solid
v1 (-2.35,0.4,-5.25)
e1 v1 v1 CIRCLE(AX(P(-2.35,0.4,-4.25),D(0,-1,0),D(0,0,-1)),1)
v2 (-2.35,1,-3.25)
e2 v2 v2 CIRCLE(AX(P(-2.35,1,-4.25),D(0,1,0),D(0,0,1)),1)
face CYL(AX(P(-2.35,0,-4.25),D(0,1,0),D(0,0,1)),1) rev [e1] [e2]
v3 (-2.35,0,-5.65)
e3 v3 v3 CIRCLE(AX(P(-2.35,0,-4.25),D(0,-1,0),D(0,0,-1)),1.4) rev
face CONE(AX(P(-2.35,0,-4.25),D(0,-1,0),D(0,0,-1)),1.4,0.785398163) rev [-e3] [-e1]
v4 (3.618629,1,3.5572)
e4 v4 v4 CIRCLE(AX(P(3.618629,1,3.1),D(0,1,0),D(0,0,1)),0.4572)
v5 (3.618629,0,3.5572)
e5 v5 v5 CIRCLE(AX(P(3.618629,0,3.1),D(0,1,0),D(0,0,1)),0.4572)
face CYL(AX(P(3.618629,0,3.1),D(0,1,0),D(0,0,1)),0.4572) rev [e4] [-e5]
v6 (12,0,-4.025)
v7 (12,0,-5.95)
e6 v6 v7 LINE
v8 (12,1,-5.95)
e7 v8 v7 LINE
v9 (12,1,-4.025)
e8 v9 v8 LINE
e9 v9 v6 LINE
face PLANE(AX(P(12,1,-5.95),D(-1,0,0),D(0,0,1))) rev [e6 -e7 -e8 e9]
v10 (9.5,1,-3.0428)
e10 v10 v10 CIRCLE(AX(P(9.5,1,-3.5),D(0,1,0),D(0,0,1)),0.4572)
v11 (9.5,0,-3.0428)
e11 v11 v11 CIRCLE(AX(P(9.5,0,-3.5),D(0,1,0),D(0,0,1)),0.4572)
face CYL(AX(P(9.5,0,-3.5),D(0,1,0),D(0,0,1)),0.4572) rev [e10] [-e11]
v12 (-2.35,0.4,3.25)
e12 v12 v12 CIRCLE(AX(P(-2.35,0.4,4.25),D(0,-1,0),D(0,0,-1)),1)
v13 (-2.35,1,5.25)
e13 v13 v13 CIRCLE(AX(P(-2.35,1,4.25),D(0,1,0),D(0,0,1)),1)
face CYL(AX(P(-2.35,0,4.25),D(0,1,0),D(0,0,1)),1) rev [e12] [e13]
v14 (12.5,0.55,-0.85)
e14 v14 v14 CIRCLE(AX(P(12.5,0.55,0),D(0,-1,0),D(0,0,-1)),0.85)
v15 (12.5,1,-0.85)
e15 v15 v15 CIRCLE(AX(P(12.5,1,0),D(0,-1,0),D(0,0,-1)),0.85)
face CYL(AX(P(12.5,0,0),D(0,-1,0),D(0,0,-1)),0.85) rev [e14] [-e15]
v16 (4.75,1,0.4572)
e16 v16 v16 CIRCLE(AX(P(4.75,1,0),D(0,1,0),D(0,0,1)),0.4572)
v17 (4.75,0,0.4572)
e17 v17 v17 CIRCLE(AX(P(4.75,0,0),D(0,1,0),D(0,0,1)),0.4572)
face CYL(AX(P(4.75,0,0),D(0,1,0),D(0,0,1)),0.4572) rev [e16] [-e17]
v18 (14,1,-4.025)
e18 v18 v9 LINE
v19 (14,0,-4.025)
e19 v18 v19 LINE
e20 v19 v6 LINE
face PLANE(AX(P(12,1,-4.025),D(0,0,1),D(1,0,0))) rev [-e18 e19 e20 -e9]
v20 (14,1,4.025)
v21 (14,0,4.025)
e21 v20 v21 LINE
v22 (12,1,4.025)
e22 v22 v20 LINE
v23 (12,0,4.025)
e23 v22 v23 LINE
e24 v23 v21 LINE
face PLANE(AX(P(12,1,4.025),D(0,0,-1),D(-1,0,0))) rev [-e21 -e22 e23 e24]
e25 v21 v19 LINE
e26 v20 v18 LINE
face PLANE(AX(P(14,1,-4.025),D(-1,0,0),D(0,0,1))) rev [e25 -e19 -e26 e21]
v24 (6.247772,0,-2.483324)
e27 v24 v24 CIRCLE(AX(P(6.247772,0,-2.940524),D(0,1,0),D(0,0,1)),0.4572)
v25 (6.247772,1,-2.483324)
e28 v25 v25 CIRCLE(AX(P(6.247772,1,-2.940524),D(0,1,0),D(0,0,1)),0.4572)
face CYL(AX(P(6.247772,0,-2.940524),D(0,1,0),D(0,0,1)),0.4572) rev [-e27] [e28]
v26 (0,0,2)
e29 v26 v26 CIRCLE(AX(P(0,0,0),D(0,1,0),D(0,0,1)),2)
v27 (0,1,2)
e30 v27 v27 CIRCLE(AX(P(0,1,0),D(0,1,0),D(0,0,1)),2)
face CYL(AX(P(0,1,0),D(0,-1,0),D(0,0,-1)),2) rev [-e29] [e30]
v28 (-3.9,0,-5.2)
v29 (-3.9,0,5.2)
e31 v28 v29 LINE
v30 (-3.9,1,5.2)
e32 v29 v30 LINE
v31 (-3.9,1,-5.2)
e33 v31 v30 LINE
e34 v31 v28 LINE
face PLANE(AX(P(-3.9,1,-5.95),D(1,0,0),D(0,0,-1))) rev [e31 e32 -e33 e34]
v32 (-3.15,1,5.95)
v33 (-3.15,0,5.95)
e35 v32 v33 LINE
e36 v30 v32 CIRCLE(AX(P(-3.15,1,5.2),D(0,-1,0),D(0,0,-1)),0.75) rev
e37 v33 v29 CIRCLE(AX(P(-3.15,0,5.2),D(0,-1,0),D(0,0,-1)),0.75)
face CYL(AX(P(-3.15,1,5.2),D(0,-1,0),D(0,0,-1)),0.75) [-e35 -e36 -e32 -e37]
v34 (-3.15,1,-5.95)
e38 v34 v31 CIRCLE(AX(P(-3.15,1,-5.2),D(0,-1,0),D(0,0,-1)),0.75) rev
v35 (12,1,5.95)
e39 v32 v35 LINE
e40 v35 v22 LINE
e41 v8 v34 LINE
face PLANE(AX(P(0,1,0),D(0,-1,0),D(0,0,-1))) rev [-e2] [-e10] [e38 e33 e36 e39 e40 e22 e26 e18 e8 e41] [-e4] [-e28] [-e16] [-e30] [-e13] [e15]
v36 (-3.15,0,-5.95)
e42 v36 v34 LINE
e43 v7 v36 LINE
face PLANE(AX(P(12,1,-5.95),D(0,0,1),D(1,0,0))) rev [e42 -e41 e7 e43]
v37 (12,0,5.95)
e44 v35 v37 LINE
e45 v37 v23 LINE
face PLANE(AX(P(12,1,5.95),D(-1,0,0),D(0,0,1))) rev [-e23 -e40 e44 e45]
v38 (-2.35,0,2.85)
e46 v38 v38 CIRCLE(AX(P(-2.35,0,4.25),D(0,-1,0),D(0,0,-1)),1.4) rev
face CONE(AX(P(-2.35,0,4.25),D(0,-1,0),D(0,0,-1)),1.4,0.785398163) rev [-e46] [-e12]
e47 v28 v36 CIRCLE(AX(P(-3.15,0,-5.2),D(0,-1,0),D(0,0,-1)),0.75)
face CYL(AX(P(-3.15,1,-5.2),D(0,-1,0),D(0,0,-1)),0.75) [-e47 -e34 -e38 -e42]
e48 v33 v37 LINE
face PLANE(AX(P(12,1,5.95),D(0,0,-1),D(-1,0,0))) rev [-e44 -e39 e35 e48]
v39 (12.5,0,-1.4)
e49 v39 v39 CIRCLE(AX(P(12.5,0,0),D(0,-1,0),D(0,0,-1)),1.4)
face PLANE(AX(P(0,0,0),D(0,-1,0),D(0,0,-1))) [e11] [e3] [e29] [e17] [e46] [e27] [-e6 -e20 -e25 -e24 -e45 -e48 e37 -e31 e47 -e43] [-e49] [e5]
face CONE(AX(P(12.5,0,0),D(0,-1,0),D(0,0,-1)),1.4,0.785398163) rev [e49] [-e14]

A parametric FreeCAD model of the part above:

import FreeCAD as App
import Part
import Sketcher
from FreeCAD import Vector
Q = App.Units.Quantity


def edges_at(feature, points):
    """Names of the edges that pass closest to the given points."""
    edges = feature.Shape.Edges
    near = lambda p: min(range(len(edges)), key=lambda i: edges[i].distToShape(Part.Vertex(*p))[0])
    return sorted({f"Edge{near(p) + 1}" for p in points})

doc = App.newDocument("Part")
body = doc.addObject("PartDesign::Body", "Body")

sketch1 = body.newObject("Sketcher::SketchObject", "Sketch")
sketch1.AttachmentSupport = (doc.getObject("XZ_Plane"), [""])
sketch1.MapMode = "FlatFace"
sketch1.addGeometry(Part.LineSegment(Vector(12, -6, 0), Vector(-3.9, -6, 0)), False)
sketch1.addGeometry(Part.LineSegment(Vector(-3.9, -6, 0), Vector(-3.9, 6, 0)), False)
sketch1.addGeometry(Part.LineSegment(Vector(-3.9, 6, 0), Vector(12, 6, 0)), False)
sketch1.addGeometry(Part.LineSegment(Vector(12, 6, 0), Vector(12, 4, 0)), False)
sketch1.addGeometry(Part.LineSegment(Vector(12, 4, 0), Vector(14, 4, 0)), False)
sketch1.addGeometry(Part.LineSegment(Vector(14, 4, 0), Vector(14, -4, 0)), False)
sketch1.addGeometry(Part.LineSegment(Vector(14, -4, 0), Vector(12, -4, 0)), False)
sketch1.addGeometry(Part.LineSegment(Vector(12, -4, 0), Vector(12, -6, 0)), False)
sketch1.addGeometry(Part.Circle(Vector(0, 0, 0), Vector(0, 0, 1), 2), False)
sketch1.addConstraint(Sketcher.Constraint("Coincident", 0, 2, 1, 1))
sketch1.addConstraint(Sketcher.Constraint("Coincident", 1, 2, 2, 1))
sketch1.addConstraint(Sketcher.Constraint("Coincident", 2, 2, 3, 1))
sketch1.addConstraint(Sketcher.Constraint("Coincident", 3, 2, 4, 1))
sketch1.addConstraint(Sketcher.Constraint("Coincident", 4, 2, 5, 1))
sketch1.addConstraint(Sketcher.Constraint("Coincident", 5, 2, 6, 1))
sketch1.addConstraint(Sketcher.Constraint("Coincident", 6, 2, 7, 1))
sketch1.addConstraint(Sketcher.Constraint("Coincident", 7, 2, 0, 1))
sketch1.addConstraint(Sketcher.Constraint("Horizontal", 0))
sketch1.addConstraint(Sketcher.Constraint("Vertical", 1))
sketch1.addConstraint(Sketcher.Constraint("Horizontal", 2))
sketch1.addConstraint(Sketcher.Constraint("Vertical", 3))
sketch1.addConstraint(Sketcher.Constraint("Horizontal", 4))
sketch1.addConstraint(Sketcher.Constraint("Vertical", 5))
sketch1.addConstraint(Sketcher.Constraint("Horizontal", 6))
sketch1.addConstraint(Sketcher.Constraint("Vertical", 7))
sketch1.addConstraint(Sketcher.Constraint("Coincident", 8, 3, -1, 1))
sketch1.addConstraint(Sketcher.Constraint("Symmetric", 3, 2, 6, 2, -1))
sketch1.addConstraint(Sketcher.Constraint("Equal", 3, 7))
sketch1.addConstraint(Sketcher.Constraint("Diameter", 8, Q("4 mm")))
sketch1.addConstraint(Sketcher.Constraint("DistanceX", 4, 1, 4, 2, Q("2 mm")))
sketch1.addConstraint(Sketcher.Constraint("DistanceX", 0, 2, 0, 1, Q("15.9 mm")))
sketch1.addConstraint(Sketcher.Constraint("DistanceY", 1, 1, 1, 2, Q("11.9 mm")))
sketch1.addConstraint(Sketcher.Constraint("DistanceX", -1, 1, 2, 2, Q("12 mm")))
sketch1.addConstraint(Sketcher.Constraint("DistanceY", 5, 2, 5, 1, Q("8.05 mm")))
pad1 = body.newObject("PartDesign::Pad", "Pad")
pad1.Profile = sketch1
pad1.Length = 1
pad1.Reversed = True

sketch2 = body.newObject("Sketcher::SketchObject", "Sketch001")
sketch2.AttachmentSupport = (doc.getObject("XZ_Plane"), [""])
sketch2.MapMode = "FlatFace"
sketch2.AttachmentOffset = App.Placement(Vector(0, 0, -1), App.Rotation())
sketch2.addGeometry(Part.Circle(Vector(-2.4, -4.2, 0), Vector(0, 0, 1), 1), False)
sketch2.addGeometry(Part.Circle(Vector(-2.4, 4.2, 0), Vector(0, 0, 1), 1), False)
sketch2.addConstraint(Sketcher.Constraint("Equal", 0, 1))
sketch2.addConstraint(Sketcher.Constraint("Symmetric", 0, 3, 1, 3, -1))
sketch2.addConstraint(Sketcher.Constraint("Diameter", 0, Q("2 mm")))
sketch2.addConstraint(Sketcher.Constraint("DistanceY", 0, 3, 1, 3, Q("8.5 mm")))
sketch2.addConstraint(Sketcher.Constraint("DistanceX", 0, 3, -1, 1, Q("2.35 mm")))
pocket1 = body.newObject("PartDesign::Pocket", "Pocket")
pocket1.Profile = sketch2
pocket1.Type = "ThroughAll"
pocket1.Reversed = True
doc.recompute()

fillet = body.newObject("PartDesign::Fillet", "Fillet")
fillet.Base = (pocket1, edges_at(pocket1, [(-3.9, 0.5, -5.95), (-3.9, 0.5, 5.95)]))
fillet.Radius = 0.75
doc.recompute()

chamfer = body.newObject("PartDesign::Chamfer", "Chamfer")
chamfer.Base = (fillet, edges_at(fillet, [(-2.35, 0, -5.25), (-2.35, 0, 3.25)]))
chamfer.Size = 0.4

sketch3 = body.newObject("Sketcher::SketchObject", "Sketch002")
sketch3.AttachmentSupport = (doc.getObject("XZ_Plane"), [""])
sketch3.MapMode = "FlatFace"
sketch3.AttachmentOffset = App.Placement(Vector(0, 0, -1), App.Rotation())
sketch3.addGeometry(Part.Circle(Vector(3.62, 3.1, 0), Vector(0, 0, 1), 0.46), False)
sketch3.addGeometry(Part.Circle(Vector(4.75, 0, 0), Vector(0, 0, 1), 0.46), False)
sketch3.addGeometry(Part.Circle(Vector(6.25, -2.94, 0), Vector(0, 0, 1), 0.46), False)
sketch3.addGeometry(Part.Circle(Vector(9.5, -3.5, 0), Vector(0, 0, 1), 0.46), False)
sketch3.addConstraint(Sketcher.Constraint("Equal", 0, 1))
sketch3.addConstraint(Sketcher.Constraint("Equal", 1, 2))
sketch3.addConstraint(Sketcher.Constraint("Equal", 2, 3))
sketch3.addConstraint(Sketcher.Constraint("PointOnObject", 1, 3, -1))
sketch3.addConstraint(Sketcher.Constraint("Diameter", 0, Q("0.9144 mm")))
sketch3.addConstraint(Sketcher.Constraint("DistanceY", -1, 1, 0, 3, Q("3.1 mm")))
sketch3.addConstraint(Sketcher.Constraint("DistanceX", -1, 1, 3, 3, Q("9.5 mm")))
sketch3.addConstraint(Sketcher.Constraint("DistanceY", 3, 3, -1, 1, Q("3.5 mm")))
sketch3.addConstraint(Sketcher.Constraint("DistanceX", -1, 1, 1, 3, Q("4.75 mm")))
sketch3.addConstraint(Sketcher.Constraint("DistanceX", -1, 1, 0, 3, Q("3.618629 mm")))
sketch3.addConstraint(Sketcher.Constraint("DistanceX", -1, 1, 2, 3, Q("6.247772 mm")))
sketch3.addConstraint(Sketcher.Constraint("DistanceY", 2, 3, -1, 1, Q("2.940524 mm")))
pocket2 = body.newObject("PartDesign::Pocket", "Pocket001")
pocket2.Profile = sketch3
pocket2.Type = "ThroughAll"
pocket2.Reversed = True

sketch4 = body.newObject("Sketcher::SketchObject", "Sketch003")
sketch4.AttachmentSupport = (doc.getObject("YZ_Plane"), [""])
sketch4.MapMode = "FlatFace"
sketch4.AttachmentOffset = App.Placement(Vector(0, 0, 12.5), App.Rotation())
sketch4.addGeometry(Part.LineSegment(Vector(1, 0, 0), Vector(0, 0, 0)), False)
sketch4.addGeometry(Part.LineSegment(Vector(0, 0, 0), Vector(0, -1.4, 0)), False)
sketch4.addGeometry(Part.LineSegment(Vector(0, -1.4, 0), Vector(0.55, -0.85, 0)), False)
sketch4.addGeometry(Part.LineSegment(Vector(0.55, -0.85, 0), Vector(1, -0.85, 0)), False)
sketch4.addGeometry(Part.LineSegment(Vector(1, -0.85, 0), Vector(1, 0, 0)), False)
sketch4.addConstraint(Sketcher.Constraint("Coincident", 0, 2, 1, 1))
sketch4.addConstraint(Sketcher.Constraint("Coincident", 1, 2, 2, 1))
sketch4.addConstraint(Sketcher.Constraint("Coincident", 2, 2, 3, 1))
sketch4.addConstraint(Sketcher.Constraint("Coincident", 3, 2, 4, 1))
sketch4.addConstraint(Sketcher.Constraint("Coincident", 4, 2, 0, 1))
sketch4.addConstraint(Sketcher.Constraint("Horizontal", 0))
sketch4.addConstraint(Sketcher.Constraint("Vertical", 1))
sketch4.addConstraint(Sketcher.Constraint("Horizontal", 3))
sketch4.addConstraint(Sketcher.Constraint("Vertical", 4))
sketch4.addConstraint(Sketcher.Constraint("Coincident", 0, 2, -1, 1))
sketch4.addConstraint(Sketcher.Constraint("DistanceX", 0, 2, 0, 1, Q("1 mm")))
sketch4.addConstraint(Sketcher.Constraint("Angle", 2, Q("45 deg")))
sketch4.addConstraint(Sketcher.Constraint("DistanceY", 1, 2, 1, 1, Q("1.4 mm")))
sketch4.addConstraint(Sketcher.Constraint("DistanceX", 3, 1, 3, 2, Q("0.45 mm")))
groove = body.newObject("PartDesign::Groove", "Groove")
groove.Profile = sketch4
groove.ReferenceAxis = (sketch4, ["H_Axis"])
groove.Angle = 360

doc.recompute()
